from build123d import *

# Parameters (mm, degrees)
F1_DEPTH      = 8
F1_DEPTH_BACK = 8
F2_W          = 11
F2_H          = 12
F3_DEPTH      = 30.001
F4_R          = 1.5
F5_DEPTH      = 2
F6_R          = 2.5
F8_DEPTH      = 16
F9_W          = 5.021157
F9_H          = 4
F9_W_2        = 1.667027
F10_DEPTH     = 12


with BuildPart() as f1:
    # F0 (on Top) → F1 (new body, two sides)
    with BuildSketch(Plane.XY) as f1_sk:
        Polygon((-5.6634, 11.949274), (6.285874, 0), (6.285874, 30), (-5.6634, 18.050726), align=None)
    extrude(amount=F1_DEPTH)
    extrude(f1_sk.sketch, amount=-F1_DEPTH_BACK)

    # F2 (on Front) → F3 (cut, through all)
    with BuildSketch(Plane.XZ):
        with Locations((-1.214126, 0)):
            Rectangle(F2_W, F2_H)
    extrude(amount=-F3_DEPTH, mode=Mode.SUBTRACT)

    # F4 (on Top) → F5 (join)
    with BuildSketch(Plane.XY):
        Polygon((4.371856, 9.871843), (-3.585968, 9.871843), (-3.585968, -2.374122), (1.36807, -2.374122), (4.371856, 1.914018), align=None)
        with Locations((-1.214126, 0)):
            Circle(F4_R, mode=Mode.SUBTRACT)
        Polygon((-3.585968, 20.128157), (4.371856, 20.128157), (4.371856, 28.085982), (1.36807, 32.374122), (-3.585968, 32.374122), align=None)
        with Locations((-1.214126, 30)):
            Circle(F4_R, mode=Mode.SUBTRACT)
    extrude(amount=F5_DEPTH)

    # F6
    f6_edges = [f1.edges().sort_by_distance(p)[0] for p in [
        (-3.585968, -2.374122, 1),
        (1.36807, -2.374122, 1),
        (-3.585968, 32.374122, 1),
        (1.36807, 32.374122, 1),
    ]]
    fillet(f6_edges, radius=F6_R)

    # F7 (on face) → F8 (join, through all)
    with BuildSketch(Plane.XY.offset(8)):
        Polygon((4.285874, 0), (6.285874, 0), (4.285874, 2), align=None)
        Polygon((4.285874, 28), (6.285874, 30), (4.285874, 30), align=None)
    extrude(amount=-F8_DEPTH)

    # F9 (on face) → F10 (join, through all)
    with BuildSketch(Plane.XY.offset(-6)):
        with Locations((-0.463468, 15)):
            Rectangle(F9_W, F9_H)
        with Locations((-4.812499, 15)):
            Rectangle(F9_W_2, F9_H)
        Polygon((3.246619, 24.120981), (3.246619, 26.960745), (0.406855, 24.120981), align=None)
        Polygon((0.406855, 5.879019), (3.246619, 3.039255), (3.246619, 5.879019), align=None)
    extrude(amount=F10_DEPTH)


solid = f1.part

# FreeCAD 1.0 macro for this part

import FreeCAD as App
import Part
import Sketcher

V = App.Vector


def edges_at(feature, points):
    """Names of the edges that pass closest to the given points."""
    edges = feature.Shape.Edges
    near = lambda p: min(range(len(edges)), key=lambda i: edges[i].distToShape(Part.Vertex(*p))[0])
    return sorted({f"Edge{near(p) + 1}" for p in points})


def add_polygon(sketch, points):
    """Adds a closed chain of lines whose ends are joined by coincident constraints."""
    first, n = sketch.GeometryCount, len(points)
    for a, b in zip(points, points[1:] + points[:1]):
        sketch.addGeometry(Part.LineSegment(App.Vector(*a, 0), App.Vector(*b, 0)), False)
    for i in range(n):
        sketch.addConstraint(Sketcher.Constraint("Coincident", first + i, 2, first + (i + 1) % n, 1))

doc = App.newDocument("Part")
params = doc.addObject("Spreadsheet::Sheet", "Params")
for row, (alias, value) in enumerate([
    ("sketch1_height", "30 mm"),
    ("pad1_length", "8 mm"),
    ("pad1_length2", "8 mm"),
    ("sketch2_width", "11 mm"),
    ("sketch2_height", "12 mm"),
    ("sketch3_diameter", "3 mm"),
    ("pad2_length", "2 mm"),
    ("fillet_radius", "2.5 mm"),
    ("sketch4_width", "2 mm"),
    ("sketch5_height", "4 mm"),
], start=1):
    params.set(f"A{row}", alias)
    params.set(f"B{row}", "=" + value)
    params.setAlias(f"B{row}", alias)

body = doc.addObject("PartDesign::Body", "Body")

sketch1 = body.newObject("Sketcher::SketchObject", "Sketch")
sketch1.AttachmentSupport = (doc.getObject("XY_Plane"), [""])
sketch1.MapMode = "FlatFace"
add_polygon(sketch1, [(-6, 12), (6, 0), (6, 30), (-6, 18)])
sketch1.addConstraint([
    Sketcher.Constraint("Vertical", 1),
    Sketcher.Constraint("Vertical", 3),
    Sketcher.Constraint("PointOnObject", 0, 2, -1),
    Sketcher.Constraint("Perpendicular", 0, 2),
    Sketcher.Constraint("Equal", 0, 2),
    Sketcher.Constraint("DistanceY", 1, 1, 1, 2, 30.0),
    Sketcher.Constraint("DistanceX", 2, 2, -1, 1, 5.6634),
    Sketcher.Constraint("DistanceY", 3, 2, 3, 1, 6.101452),
])
sketch1.setExpression("Constraints[9]", "Params.sketch1_height")
pad1 = body.newObject("PartDesign::Pad", "Pad")
pad1.Profile = sketch1
pad1.Type = "TwoLengths"
pad1.setExpression("Length", "Params.pad1_length")
pad1.setExpression("Length2", "Params.pad1_length2")

sketch2 = body.newObject("Sketcher::SketchObject", "Sketch001")
sketch2.AttachmentSupport = (doc.getObject("XZ_Plane"), [""])
sketch2.MapMode = "FlatFace"
add_polygon(sketch2, [(-7, 6), (-7, -6), (4, -6), (4, 6)])
sketch2.addConstraint([
    Sketcher.Constraint("Vertical", 0),
    Sketcher.Constraint("Horizontal", 1),
    Sketcher.Constraint("Vertical", 2),
    Sketcher.Constraint("Horizontal", 3),
    Sketcher.Constraint("DistanceX", 1, 1, 1, 2, 11.0),
    Sketcher.Constraint("DistanceY", 0, 2, 0, 1, 12.0),
    Sketcher.Constraint("DistanceY", 0, 2, -1, 1, 6.0),
    Sketcher.Constraint("DistanceX", 0, 2, -1, 1, 6.714126),
])
sketch2.setExpression("Constraints[8]", "Params.sketch2_width")
sketch2.setExpression("Constraints[9]", "Params.sketch2_height")
pocket1 = body.newObject("PartDesign::Pocket", "Pocket")
pocket1.Profile = sketch2
pocket1.Type = "ThroughAll"

sketch3 = body.newObject("Sketcher::SketchObject", "Sketch002")
sketch3.AttachmentSupport = (doc.getObject("XY_Plane"), [""])
sketch3.MapMode = "FlatFace"
add_polygon(sketch3, [(4.4, 9.9), (-3.6, 9.9), (-3.6, -2.4), (1.4, -2.4), (4.4, 1.9)])
sketch3.addGeometry(Part.Circle(V(-1.2, 0, 0), V(0, 0, 1), 1.5), False)
add_polygon(sketch3, [(-3.6, 20.1), (4.4, 20.1), (4.4, 28.1), (1.4, 32.4), (-3.6, 32.4)])
sketch3.addGeometry(Part.Circle(V(-1.2, 30, 0), V(0, 0, 1), 1.5), False)
sketch3.addConstraint([
    Sketcher.Constraint("Horizontal", 0),
    Sketcher.Constraint("Vertical", 1),
    Sketcher.Constraint("Horizontal", 2),
    Sketcher.Constraint("Vertical", 4),
    Sketcher.Constraint("Horizontal", 6),
    Sketcher.Constraint("Vertical", 7),
    Sketcher.Constraint("Horizontal", 9),
    Sketcher.Constraint("Vertical", 10),
    Sketcher.Constraint("Equal", 5, 11),
    Sketcher.Constraint("PointOnObject", 5, 3, -1),
    Sketcher.Constraint("Vertical", 5, 3, 11, 3),
    Sketcher.Constraint("Vertical", 4, 2, 6, 2),
    Sketcher.Constraint("Vertical", 2, 2, 8, 2),
    Sketcher.Constraint("Vertical", 1, 2, 9, 2),
    Sketcher.Constraint("Equal", 6, 4),
    Sketcher.Constraint("Equal", 4, 7),
    Sketcher.Constraint("Equal", 1, 10),
    Sketcher.Constraint("Diameter", 5, 3.0),
    Sketcher.Constraint("DistanceY", -1, 1, 11, 3, 30.0),
    Sketcher.Constraint("Distance", 3, 5.23554),
    Sketcher.Constraint("DistanceX", 0, 2, 0, 1, 7.957824),
    Sketcher.Constraint("DistanceX", 2, 1, 2, 2, 4.954038),
    Sketcher.Constraint("DistanceY", 1, 2, -1, 1, 2.374122),
    Sketcher.Constraint("DistanceX", -1, 1, 2, 2, 1.36807),
    Sketcher.Constraint("DistanceX", 0, 2, 5, 3, 2.371842),
    Sketcher.Constraint("DistanceY", 3, 2, 6, 2, 18.214139),
])
sketch3.setExpression("Constraints[27]", "Params.sketch3_diameter")
pad2 = body.newObject("PartDesign::Pad", "Pad001")
pad2.Profile = sketch3
pad2.setExpression("Length", "Params.pad2_length")
doc.recompute()

fillet = body.newObject("PartDesign::Fillet", "Fillet")
fillet.Base = (pad2, edges_at(pad2, [
    (-3.586, -2.374, 1),
    (1.368, -2.374, 1),
    (-3.586, 32.374, 1),
    (1.368, 32.374, 1),
]))
fillet.setExpression("Radius", "Params.fillet_radius")

sketch4 = body.newObject("Sketcher::SketchObject", "Sketch003")
sketch4.AttachmentSupport = (doc.getObject("XY_Plane"), [""])
sketch4.MapMode = "FlatFace"
sketch4.AttachmentOffset = App.Placement(V(0, 0, 8), App.Rotation())
add_polygon(sketch4, [(4.3, 0), (6.3, 0), (4.3, 2)])
add_polygon(sketch4, [(4.3, 28), (6.3, 30), (4.3, 30)])
sketch4.addConstraint([
    Sketcher.Constraint("Horizontal", 0),
    Sketcher.Constraint("Vertical", 2),
    Sketcher.Constraint("Horizontal", 4),
    Sketcher.Constraint("Vertical", 5),
    Sketcher.Constraint("PointOnObject", 0, 2, -1),
    Sketcher.Constraint("Perpendicular", 1, 3),
    Sketcher.Constraint("Vertical", 0, 2, 3, 2),
    Sketcher.Constraint("Vertical", 2, 2, 4, 2),
    Sketcher.Constraint("Equal", 4, 2),
    Sketcher.Constraint("DistanceX", 0, 1, 0, 2, 2.0),
    Sketcher.Constraint("DistanceY", -1, 1, 3, 2, 30.0),
    Sketcher.Constraint("DistanceX", -1, 1, 0, 2, 6.285874),
])
sketch4.setExpression("Constraints[15]", "Params.sketch4_width")
pad3 = body.newObject("PartDesign::Pad", "Pad002")
pad3.Profile = sketch4
pad3.Type = "UpToLast"
pad3.Reversed = True

sketch5 = body.newObject("Sketcher::SketchObject", "Sketch004")
sketch5.AttachmentSupport = (doc.getObject("XY_Plane"), [""])
sketch5.MapMode = "FlatFace"
sketch5.AttachmentOffset = App.Placement(V(0, 0, -6), App.Rotation())
add_polygon(sketch5, [(-3, 17), (-3, 13), (2, 13), (2, 17)])
add_polygon(sketch5, [(-5.6, 17), (-5.6, 13), (-4, 13), (-4, 17)])
add_polygon(sketch5, [(3.2, 24.1), (3.2, 27), (0.4, 24.1)])
add_polygon(sketch5, [(0.4, 5.9), (3.2, 3), (3.2, 5.9)])
sketch5.addConstraint([
    Sketcher.Constraint("Vertical", 0),
    Sketcher.Constraint("Horizontal", 1),
    Sketcher.Constraint("Vertical", 2),
    Sketcher.Constraint("Horizontal", 3),
    Sketcher.Constraint("Vertical", 4),
    Sketcher.Constraint("Horizontal", 5),
    Sketcher.Constraint("Vertical", 6),
    Sketcher.Constraint("Horizontal", 7),
    Sketcher.Constraint("Vertical", 8),
    Sketcher.Constraint("Horizontal", 10),
    Sketcher.Constraint("Vertical", 12),
    Sketcher.Constraint("Horizontal", 13),
    Sketcher.Constraint("Perpendicular", 9, 11),
    Sketcher.Constraint("Horizontal", 1, 2, 4, 2),
    Sketcher.Constraint("Horizontal", 3, 2, 6, 2),
    Sketcher.Constraint("Vertical", 10, 2, 11, 2),
    Sketcher.Constraint("Vertical", 9, 2, 13, 2),
    Sketcher.Constraint("Equal", 13, 8),
    Sketcher.Constraint("DistanceY", 0, 2, 0, 1, 4.0),
    Sketcher.Constraint("DistanceY", -1, 1, 0, 2, 13.0),
    Sketcher.Constraint("DistanceX", 3, 2, 9, 2, 3.380902),
    Sketcher.Constraint("DistanceX", 1, 1, 1, 2, 5.021157),
    Sketcher.Constraint("DistanceX", 5, 1, 5, 2, 1.667027),
    Sketcher.Constraint("DistanceX", 10, 1, 10, 2, 2.839764),
    Sketcher.Constraint("DistanceX", -1, 1, 1, 2, 2.047111),
    Sketcher.Constraint("DistanceY", -1, 1, 9, 2, 24.120981),
    Sketcher.Constraint("DistanceY", -1, 1, 12, 2, 5.879019),
    Sketcher.Constraint("DistanceX", 5, 2, 0, 2, 1.004939),
])
sketch5.setExpression("Constraints[32]", "Params.sketch5_height")
pad4 = body.newObject("PartDesign::Pad", "Pad003")
pad4.Profile = sketch5
pad4.Type = "UpToLast"

doc.recompute()
